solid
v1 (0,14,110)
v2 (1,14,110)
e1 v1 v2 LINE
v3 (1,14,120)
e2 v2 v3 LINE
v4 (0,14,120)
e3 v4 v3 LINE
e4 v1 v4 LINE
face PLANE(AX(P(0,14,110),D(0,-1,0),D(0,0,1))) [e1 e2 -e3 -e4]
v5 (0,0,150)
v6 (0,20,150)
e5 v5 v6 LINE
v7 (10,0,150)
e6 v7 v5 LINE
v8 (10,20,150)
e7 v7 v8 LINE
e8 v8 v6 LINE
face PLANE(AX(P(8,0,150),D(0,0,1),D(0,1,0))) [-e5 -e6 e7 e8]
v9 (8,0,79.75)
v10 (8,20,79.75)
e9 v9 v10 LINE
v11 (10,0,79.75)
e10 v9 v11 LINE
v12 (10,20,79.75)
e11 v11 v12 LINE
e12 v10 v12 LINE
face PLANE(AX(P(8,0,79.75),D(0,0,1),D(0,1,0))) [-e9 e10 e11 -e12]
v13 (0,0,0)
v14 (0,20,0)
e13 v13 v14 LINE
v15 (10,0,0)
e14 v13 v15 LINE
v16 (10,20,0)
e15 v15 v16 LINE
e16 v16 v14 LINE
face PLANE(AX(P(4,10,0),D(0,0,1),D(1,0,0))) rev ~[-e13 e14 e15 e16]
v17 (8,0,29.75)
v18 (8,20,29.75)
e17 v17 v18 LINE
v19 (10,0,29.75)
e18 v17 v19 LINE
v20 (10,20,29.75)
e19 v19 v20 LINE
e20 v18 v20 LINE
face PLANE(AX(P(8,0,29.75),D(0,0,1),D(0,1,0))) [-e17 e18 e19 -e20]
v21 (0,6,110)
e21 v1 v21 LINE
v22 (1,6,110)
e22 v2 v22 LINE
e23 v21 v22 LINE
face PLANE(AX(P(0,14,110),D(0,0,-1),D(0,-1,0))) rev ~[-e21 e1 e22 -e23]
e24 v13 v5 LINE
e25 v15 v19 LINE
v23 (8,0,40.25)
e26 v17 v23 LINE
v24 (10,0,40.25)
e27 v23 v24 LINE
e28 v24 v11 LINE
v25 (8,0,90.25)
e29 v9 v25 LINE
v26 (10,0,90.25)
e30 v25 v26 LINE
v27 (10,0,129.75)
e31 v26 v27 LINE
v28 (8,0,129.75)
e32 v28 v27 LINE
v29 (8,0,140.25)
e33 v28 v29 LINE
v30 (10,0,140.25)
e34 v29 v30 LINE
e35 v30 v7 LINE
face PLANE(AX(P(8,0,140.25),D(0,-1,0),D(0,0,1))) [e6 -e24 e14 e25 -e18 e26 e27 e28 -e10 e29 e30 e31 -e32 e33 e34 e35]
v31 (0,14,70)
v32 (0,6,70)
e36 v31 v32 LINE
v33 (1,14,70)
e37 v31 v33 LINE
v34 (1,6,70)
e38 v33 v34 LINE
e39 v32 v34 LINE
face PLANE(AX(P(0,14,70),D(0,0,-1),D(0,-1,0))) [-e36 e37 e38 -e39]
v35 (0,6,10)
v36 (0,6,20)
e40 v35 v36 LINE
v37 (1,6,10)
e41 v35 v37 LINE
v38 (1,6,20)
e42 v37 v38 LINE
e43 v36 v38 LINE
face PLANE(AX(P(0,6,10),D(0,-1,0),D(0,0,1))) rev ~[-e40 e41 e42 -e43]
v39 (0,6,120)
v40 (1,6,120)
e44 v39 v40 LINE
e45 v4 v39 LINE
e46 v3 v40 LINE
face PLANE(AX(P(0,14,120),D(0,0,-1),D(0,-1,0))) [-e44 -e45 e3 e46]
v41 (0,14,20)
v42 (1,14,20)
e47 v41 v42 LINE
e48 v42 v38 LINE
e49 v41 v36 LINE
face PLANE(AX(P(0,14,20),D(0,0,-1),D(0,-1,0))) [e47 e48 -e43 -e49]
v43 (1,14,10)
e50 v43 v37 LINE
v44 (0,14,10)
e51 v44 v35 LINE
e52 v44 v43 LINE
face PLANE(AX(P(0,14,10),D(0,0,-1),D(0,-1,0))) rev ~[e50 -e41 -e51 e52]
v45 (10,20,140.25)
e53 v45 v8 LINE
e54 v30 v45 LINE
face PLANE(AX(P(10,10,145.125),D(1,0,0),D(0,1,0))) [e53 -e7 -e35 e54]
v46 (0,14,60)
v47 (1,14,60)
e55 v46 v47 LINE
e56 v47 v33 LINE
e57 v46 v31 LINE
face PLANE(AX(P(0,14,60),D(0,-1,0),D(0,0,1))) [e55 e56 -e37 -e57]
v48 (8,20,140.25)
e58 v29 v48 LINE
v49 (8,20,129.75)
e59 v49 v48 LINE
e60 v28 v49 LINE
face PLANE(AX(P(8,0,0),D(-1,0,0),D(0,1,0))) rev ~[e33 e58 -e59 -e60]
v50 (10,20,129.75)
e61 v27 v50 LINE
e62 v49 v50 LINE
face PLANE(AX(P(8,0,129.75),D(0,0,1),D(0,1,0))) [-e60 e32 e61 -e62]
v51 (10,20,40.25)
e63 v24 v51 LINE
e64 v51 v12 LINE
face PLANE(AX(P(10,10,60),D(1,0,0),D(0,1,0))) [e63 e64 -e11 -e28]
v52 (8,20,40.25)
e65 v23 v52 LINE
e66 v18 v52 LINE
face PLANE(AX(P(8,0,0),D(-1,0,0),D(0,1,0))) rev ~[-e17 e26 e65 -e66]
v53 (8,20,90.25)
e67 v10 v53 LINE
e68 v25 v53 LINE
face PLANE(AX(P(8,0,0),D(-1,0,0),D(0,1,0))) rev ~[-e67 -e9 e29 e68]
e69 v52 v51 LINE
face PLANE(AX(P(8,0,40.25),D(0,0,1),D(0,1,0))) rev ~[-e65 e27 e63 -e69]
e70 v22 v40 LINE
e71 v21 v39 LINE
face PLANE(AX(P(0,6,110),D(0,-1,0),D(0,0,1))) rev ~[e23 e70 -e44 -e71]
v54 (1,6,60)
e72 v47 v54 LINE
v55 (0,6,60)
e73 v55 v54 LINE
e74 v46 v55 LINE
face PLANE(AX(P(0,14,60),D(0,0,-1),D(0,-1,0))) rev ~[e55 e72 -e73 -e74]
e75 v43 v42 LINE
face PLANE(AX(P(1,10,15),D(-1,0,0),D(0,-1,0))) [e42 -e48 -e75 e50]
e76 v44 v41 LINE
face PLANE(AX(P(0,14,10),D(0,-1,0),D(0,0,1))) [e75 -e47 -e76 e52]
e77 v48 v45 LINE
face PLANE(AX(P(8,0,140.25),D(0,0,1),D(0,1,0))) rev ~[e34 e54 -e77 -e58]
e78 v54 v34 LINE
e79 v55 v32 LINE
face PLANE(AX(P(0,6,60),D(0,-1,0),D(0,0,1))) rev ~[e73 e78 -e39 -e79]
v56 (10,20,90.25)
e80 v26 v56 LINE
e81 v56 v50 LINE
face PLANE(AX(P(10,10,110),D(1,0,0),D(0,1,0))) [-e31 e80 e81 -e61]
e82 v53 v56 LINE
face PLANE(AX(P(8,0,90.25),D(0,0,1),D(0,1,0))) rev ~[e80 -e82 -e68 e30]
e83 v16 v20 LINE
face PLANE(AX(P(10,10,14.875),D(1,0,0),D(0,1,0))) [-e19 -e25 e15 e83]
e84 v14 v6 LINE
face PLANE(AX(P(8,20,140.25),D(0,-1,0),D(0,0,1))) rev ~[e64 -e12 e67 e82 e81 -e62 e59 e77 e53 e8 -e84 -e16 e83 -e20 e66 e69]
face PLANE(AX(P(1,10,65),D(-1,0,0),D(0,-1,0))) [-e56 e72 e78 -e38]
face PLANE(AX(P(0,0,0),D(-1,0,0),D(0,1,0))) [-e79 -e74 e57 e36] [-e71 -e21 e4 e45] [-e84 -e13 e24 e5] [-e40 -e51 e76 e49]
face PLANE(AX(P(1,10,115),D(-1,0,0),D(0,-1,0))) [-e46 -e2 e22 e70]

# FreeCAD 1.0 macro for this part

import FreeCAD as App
import Part
import Sketcher
from FreeCAD import Vector

doc = App.newDocument("Part")
body = doc.addObject("PartDesign::Body", "Body")

sketch1 = doc.addObject("Sketcher::SketchObject", "Sketch")
body.addObject(sketch1)
sketch1.AttachmentSupport = (doc.XY_Plane, [""])
sketch1.MapMode = "FlatFace"
sketch1.addGeometry([
    Part.LineSegment(Vector(0, 20, 0), Vector(0, 0, 0)),
    Part.LineSegment(Vector(0, 0, 0), Vector(8, 0, 0)),
    Part.LineSegment(Vector(8, 0, 0), Vector(8, 20, 0)),
    Part.LineSegment(Vector(8, 20, 0), Vector(0, 20, 0)),
], False)
sketch1.addConstraint([
    Sketcher.Constraint("Coincident", 0, 2, 1, 1),
    Sketcher.Constraint("Coincident", 1, 2, 2, 1),
    Sketcher.Constraint("Coincident", 2, 2, 3, 1),
    Sketcher.Constraint("Coincident", 3, 2, 0, 1),
    Sketcher.Constraint("Vertical", 0),
    Sketcher.Constraint("Horizontal", 1),
    Sketcher.Constraint("Vertical", 2),
    Sketcher.Constraint("Horizontal", 3),
    Sketcher.Constraint("Coincident", 0, 2, -1, 1),
    Sketcher.Constraint("DistanceX", 1, 1, 1, 2, 8.0),
    Sketcher.Constraint("DistanceY", 0, 2, 0, 1, 20.0),
])
pad1 = doc.addObject("PartDesign::Pad", "Pad")
body.addObject(pad1)
pad1.Profile = sketch1
pad1.Length = 150

sketch2 = doc.addObject("Sketcher::SketchObject", "Sketch001")
body.addObject(sketch2)
sketch2.AttachmentSupport = (doc.YZ_Plane, [""])
sketch2.MapMode = "FlatFace"
sketch2.AttachmentOffset = App.Placement(Vector(0, 0, 8), App.Rotation())
sketch2.addGeometry([
    Part.LineSegment(Vector(0, 150, 0), Vector(0, 140.25, 0)),
    Part.LineSegment(Vector(0, 140.25, 0), Vector(20, 140.25, 0)),
    Part.LineSegment(Vector(20, 140.25, 0), Vector(20, 150, 0)),
    Part.LineSegment(Vector(20, 150, 0), Vector(0, 150, 0)),
    Part.LineSegment(Vector(0, 129.75, 0), Vector(0, 90.25, 0)),
    Part.LineSegment(Vector(0, 90.25, 0), Vector(20, 90.25, 0)),
    Part.LineSegment(Vector(20, 90.25, 0), Vector(20, 129.75, 0)),
    Part.LineSegment(Vector(20, 129.75, 0), Vector(0, 129.75, 0)),
    Part.LineSegment(Vector(0, 79.75, 0), Vector(0, 40.25, 0)),
    Part.LineSegment(Vector(0, 40.25, 0), Vector(20, 40.25, 0)),
    Part.LineSegment(Vector(20, 40.25, 0), Vector(20, 79.75, 0)),
    Part.LineSegment(Vector(20, 79.75, 0), Vector(0, 79.75, 0)),
    Part.LineSegment(Vector(0, 29.75, 0), Vector(0, 0, 0)),
    Part.LineSegment(Vector(0, 0, 0), Vector(20, 0, 0)),
    Part.LineSegment(Vector(20, 0, 0), Vector(20, 29.75, 0)),
    Part.LineSegment(Vector(20, 29.75, 0), Vector(0, 29.75, 0)),
], False)
sketch2.addConstraint([
    Sketcher.Constraint("Coincident", 0, 2, 1, 1),
    Sketcher.Constraint("Coincident", 1, 2, 2, 1),
    Sketcher.Constraint("Coincident", 2, 2, 3, 1),
    Sketcher.Constraint("Coincident", 3, 2, 0, 1),
    Sketcher.Constraint("Coincident", 4, 2, 5, 1),
    Sketcher.Constraint("Coincident", 5, 2, 6, 1),
    Sketcher.Constraint("Coincident", 6, 2, 7, 1),
    Sketcher.Constraint("Coincident", 7, 2, 4, 1),
    Sketcher.Constraint("Coincident", 8, 2, 9, 1),
    Sketcher.Constraint("Coincident", 9, 2, 10, 1),
    Sketcher.Constraint("Coincident", 10, 2, 11, 1),
    Sketcher.Constraint("Coincident", 11, 2, 8, 1),
    Sketcher.Constraint("Coincident", 12, 2, 13, 1),
    Sketcher.Constraint("Coincident", 13, 2, 14, 1),
    Sketcher.Constraint("Coincident", 14, 2, 15, 1),
    Sketcher.Constraint("Coincident", 15, 2, 12, 1),
    Sketcher.Constraint("Vertical", 0),
    Sketcher.Constraint("Horizontal", 1),
    Sketcher.Constraint("Vertical", 2),
    Sketcher.Constraint("Horizontal", 3),
    Sketcher.Constraint("Vertical", 4),
    Sketcher.Constraint("Horizontal", 5),
    Sketcher.Constraint("Vertical", 6),
    Sketcher.Constraint("Horizontal", 7),
    Sketcher.Constraint("Vertical", 8),
    Sketcher.Constraint("Horizontal", 9),
    Sketcher.Constraint("Vertical", 10),
    Sketcher.Constraint("Horizontal", 11),
    Sketcher.Constraint("Vertical", 12),
    Sketcher.Constraint("Horizontal", 13),
    Sketcher.Constraint("Vertical", 14),
    Sketcher.Constraint("Horizontal", 15),
    Sketcher.Constraint("Coincident", 12, 2, -1, 1),
    Sketcher.Constraint("PointOnObject", 0, 2, -2),
    Sketcher.Constraint("PointOnObject", 4, 2, -2),
    Sketcher.Constraint("PointOnObject", 8, 2, -2),
    Sketcher.Constraint("Vertical", 2, 2, 5, 2),
    Sketcher.Constraint("Vertical", 6, 2, 9, 2),
    Sketcher.Constraint("Vertical", 10, 2, 13, 2),
    Sketcher.Constraint("Equal", 6, 8),
    Sketcher.Constraint("DistanceX", 1, 1, 1, 2, 20.0),
    Sketcher.Constraint("DistanceY", 4, 2, 4, 1, 39.5),
    Sketcher.Constraint("DistanceY", -1, 1, 2, 2, 150.0),
    Sketcher.Constraint("DistanceY", 4, 2, 0, 2, 50.0),
    Sketcher.Constraint("DistanceY", 8, 2, 4, 2, 50.0),
    Sketcher.Constraint("DistanceY", 14, 2, 10, 2, 50.0),
    Sketcher.Constraint("DistanceY", 0, 2, 0, 1, 9.75),
])
pad2 = doc.addObject("PartDesign::Pad", "Pad001")
body.addObject(pad2)
pad2.Profile = sketch2
pad2.Length = 2

sketch3 = doc.addObject("Sketcher::SketchObject", "Sketch002")
body.addObject(sketch3)
sketch3.AttachmentSupport = (doc.YZ_Plane, [""])
sketch3.MapMode = "FlatFace"
sketch3.addGeometry([
    Part.LineSegment(Vector(14, 120, 0), Vector(14, 110, 0)),
    Part.LineSegment(Vector(14, 110, 0), Vector(6, 110, 0)),
    Part.LineSegment(Vector(6, 110, 0), Vector(6, 120, 0)),
    Part.LineSegment(Vector(6, 120, 0), Vector(14, 120, 0)),
    Part.LineSegment(Vector(14, 70, 0), Vector(14, 60, 0)),
    Part.LineSegment(Vector(14, 60, 0), Vector(6, 60, 0)),
    Part.LineSegment(Vector(6, 60, 0), Vector(6, 70, 0)),
    Part.LineSegment(Vector(6, 70, 0), Vector(14, 70, 0)),
    Part.LineSegment(Vector(14, 20, 0), Vector(14, 10, 0)),
    Part.LineSegment(Vector(14, 10, 0), Vector(6, 10, 0)),
    Part.LineSegment(Vector(6, 10, 0), Vector(6, 20, 0)),
    Part.LineSegment(Vector(6, 20, 0), Vector(14, 20, 0)),
], False)
sketch3.addConstraint([
    Sketcher.Constraint("Coincident", 0, 2, 1, 1),
    Sketcher.Constraint("Coincident", 1, 2, 2, 1),
    Sketcher.Constraint("Coincident", 2, 2, 3, 1),
    Sketcher.Constraint("Coincident", 3, 2, 0, 1),
    Sketcher.Constraint("Coincident", 4, 2, 5, 1),
    Sketcher.Constraint("Coincident", 5, 2, 6, 1),
    Sketcher.Constraint("Coincident", 6, 2, 7, 1),
    Sketcher.Constraint("Coincident", 7, 2, 4, 1),
    Sketcher.Constraint("Coincident", 8, 2, 9, 1),
    Sketcher.Constraint("Coincident", 9, 2, 10, 1),
    Sketcher.Constraint("Coincident", 10, 2, 11, 1),
    Sketcher.Constraint("Coincident", 11, 2, 8, 1),
    Sketcher.Constraint("Vertical", 0),
    Sketcher.Constraint("Horizontal", 1),
    Sketcher.Constraint("Vertical", 2),
    Sketcher.Constraint("Horizontal", 3),
    Sketcher.Constraint("Vertical", 4),
    Sketcher.Constraint("Horizontal", 5),
    Sketcher.Constraint("Vertical", 6),
    Sketcher.Constraint("Horizontal", 7),
    Sketcher.Constraint("Vertical", 8),
    Sketcher.Constraint("Horizontal", 9),
    Sketcher.Constraint("Vertical", 10),
    Sketcher.Constraint("Horizontal", 11),
    Sketcher.Constraint("Vertical", 3, 2, 4, 2),
    Sketcher.Constraint("Vertical", 2, 2, 5, 2),
    Sketcher.Constraint("Vertical", 7, 2, 8, 2),
    Sketcher.Constraint("Vertical", 6, 2, 9, 2),
    Sketcher.Constraint("Equal", 2, 4),
    Sketcher.Constraint("Equal", 6, 8),
    Sketcher.Constraint("DistanceX", 1, 2, 1, 1, 8.0),
    Sketcher.Constraint("DistanceY", 0, 2, 0, 1, 10.0),
    Sketcher.Constraint("DistanceX", -1, 1, 0, 2, 14.0),
    Sketcher.Constraint("DistanceY", -1, 1, 0, 2, 110.0),
    Sketcher.Constraint("DistanceY", -1, 1, 4, 2, 60.0),
    Sketcher.Constraint("DistanceY", -1, 1, 8, 2, 10.0),
])
pocket1 = doc.addObject("PartDesign::Pocket", "Pocket")
body.addObject(pocket1)
pocket1.Profile = sketch3
pocket1.Length = 1
pocket1.Reversed = True

doc.recompute()
